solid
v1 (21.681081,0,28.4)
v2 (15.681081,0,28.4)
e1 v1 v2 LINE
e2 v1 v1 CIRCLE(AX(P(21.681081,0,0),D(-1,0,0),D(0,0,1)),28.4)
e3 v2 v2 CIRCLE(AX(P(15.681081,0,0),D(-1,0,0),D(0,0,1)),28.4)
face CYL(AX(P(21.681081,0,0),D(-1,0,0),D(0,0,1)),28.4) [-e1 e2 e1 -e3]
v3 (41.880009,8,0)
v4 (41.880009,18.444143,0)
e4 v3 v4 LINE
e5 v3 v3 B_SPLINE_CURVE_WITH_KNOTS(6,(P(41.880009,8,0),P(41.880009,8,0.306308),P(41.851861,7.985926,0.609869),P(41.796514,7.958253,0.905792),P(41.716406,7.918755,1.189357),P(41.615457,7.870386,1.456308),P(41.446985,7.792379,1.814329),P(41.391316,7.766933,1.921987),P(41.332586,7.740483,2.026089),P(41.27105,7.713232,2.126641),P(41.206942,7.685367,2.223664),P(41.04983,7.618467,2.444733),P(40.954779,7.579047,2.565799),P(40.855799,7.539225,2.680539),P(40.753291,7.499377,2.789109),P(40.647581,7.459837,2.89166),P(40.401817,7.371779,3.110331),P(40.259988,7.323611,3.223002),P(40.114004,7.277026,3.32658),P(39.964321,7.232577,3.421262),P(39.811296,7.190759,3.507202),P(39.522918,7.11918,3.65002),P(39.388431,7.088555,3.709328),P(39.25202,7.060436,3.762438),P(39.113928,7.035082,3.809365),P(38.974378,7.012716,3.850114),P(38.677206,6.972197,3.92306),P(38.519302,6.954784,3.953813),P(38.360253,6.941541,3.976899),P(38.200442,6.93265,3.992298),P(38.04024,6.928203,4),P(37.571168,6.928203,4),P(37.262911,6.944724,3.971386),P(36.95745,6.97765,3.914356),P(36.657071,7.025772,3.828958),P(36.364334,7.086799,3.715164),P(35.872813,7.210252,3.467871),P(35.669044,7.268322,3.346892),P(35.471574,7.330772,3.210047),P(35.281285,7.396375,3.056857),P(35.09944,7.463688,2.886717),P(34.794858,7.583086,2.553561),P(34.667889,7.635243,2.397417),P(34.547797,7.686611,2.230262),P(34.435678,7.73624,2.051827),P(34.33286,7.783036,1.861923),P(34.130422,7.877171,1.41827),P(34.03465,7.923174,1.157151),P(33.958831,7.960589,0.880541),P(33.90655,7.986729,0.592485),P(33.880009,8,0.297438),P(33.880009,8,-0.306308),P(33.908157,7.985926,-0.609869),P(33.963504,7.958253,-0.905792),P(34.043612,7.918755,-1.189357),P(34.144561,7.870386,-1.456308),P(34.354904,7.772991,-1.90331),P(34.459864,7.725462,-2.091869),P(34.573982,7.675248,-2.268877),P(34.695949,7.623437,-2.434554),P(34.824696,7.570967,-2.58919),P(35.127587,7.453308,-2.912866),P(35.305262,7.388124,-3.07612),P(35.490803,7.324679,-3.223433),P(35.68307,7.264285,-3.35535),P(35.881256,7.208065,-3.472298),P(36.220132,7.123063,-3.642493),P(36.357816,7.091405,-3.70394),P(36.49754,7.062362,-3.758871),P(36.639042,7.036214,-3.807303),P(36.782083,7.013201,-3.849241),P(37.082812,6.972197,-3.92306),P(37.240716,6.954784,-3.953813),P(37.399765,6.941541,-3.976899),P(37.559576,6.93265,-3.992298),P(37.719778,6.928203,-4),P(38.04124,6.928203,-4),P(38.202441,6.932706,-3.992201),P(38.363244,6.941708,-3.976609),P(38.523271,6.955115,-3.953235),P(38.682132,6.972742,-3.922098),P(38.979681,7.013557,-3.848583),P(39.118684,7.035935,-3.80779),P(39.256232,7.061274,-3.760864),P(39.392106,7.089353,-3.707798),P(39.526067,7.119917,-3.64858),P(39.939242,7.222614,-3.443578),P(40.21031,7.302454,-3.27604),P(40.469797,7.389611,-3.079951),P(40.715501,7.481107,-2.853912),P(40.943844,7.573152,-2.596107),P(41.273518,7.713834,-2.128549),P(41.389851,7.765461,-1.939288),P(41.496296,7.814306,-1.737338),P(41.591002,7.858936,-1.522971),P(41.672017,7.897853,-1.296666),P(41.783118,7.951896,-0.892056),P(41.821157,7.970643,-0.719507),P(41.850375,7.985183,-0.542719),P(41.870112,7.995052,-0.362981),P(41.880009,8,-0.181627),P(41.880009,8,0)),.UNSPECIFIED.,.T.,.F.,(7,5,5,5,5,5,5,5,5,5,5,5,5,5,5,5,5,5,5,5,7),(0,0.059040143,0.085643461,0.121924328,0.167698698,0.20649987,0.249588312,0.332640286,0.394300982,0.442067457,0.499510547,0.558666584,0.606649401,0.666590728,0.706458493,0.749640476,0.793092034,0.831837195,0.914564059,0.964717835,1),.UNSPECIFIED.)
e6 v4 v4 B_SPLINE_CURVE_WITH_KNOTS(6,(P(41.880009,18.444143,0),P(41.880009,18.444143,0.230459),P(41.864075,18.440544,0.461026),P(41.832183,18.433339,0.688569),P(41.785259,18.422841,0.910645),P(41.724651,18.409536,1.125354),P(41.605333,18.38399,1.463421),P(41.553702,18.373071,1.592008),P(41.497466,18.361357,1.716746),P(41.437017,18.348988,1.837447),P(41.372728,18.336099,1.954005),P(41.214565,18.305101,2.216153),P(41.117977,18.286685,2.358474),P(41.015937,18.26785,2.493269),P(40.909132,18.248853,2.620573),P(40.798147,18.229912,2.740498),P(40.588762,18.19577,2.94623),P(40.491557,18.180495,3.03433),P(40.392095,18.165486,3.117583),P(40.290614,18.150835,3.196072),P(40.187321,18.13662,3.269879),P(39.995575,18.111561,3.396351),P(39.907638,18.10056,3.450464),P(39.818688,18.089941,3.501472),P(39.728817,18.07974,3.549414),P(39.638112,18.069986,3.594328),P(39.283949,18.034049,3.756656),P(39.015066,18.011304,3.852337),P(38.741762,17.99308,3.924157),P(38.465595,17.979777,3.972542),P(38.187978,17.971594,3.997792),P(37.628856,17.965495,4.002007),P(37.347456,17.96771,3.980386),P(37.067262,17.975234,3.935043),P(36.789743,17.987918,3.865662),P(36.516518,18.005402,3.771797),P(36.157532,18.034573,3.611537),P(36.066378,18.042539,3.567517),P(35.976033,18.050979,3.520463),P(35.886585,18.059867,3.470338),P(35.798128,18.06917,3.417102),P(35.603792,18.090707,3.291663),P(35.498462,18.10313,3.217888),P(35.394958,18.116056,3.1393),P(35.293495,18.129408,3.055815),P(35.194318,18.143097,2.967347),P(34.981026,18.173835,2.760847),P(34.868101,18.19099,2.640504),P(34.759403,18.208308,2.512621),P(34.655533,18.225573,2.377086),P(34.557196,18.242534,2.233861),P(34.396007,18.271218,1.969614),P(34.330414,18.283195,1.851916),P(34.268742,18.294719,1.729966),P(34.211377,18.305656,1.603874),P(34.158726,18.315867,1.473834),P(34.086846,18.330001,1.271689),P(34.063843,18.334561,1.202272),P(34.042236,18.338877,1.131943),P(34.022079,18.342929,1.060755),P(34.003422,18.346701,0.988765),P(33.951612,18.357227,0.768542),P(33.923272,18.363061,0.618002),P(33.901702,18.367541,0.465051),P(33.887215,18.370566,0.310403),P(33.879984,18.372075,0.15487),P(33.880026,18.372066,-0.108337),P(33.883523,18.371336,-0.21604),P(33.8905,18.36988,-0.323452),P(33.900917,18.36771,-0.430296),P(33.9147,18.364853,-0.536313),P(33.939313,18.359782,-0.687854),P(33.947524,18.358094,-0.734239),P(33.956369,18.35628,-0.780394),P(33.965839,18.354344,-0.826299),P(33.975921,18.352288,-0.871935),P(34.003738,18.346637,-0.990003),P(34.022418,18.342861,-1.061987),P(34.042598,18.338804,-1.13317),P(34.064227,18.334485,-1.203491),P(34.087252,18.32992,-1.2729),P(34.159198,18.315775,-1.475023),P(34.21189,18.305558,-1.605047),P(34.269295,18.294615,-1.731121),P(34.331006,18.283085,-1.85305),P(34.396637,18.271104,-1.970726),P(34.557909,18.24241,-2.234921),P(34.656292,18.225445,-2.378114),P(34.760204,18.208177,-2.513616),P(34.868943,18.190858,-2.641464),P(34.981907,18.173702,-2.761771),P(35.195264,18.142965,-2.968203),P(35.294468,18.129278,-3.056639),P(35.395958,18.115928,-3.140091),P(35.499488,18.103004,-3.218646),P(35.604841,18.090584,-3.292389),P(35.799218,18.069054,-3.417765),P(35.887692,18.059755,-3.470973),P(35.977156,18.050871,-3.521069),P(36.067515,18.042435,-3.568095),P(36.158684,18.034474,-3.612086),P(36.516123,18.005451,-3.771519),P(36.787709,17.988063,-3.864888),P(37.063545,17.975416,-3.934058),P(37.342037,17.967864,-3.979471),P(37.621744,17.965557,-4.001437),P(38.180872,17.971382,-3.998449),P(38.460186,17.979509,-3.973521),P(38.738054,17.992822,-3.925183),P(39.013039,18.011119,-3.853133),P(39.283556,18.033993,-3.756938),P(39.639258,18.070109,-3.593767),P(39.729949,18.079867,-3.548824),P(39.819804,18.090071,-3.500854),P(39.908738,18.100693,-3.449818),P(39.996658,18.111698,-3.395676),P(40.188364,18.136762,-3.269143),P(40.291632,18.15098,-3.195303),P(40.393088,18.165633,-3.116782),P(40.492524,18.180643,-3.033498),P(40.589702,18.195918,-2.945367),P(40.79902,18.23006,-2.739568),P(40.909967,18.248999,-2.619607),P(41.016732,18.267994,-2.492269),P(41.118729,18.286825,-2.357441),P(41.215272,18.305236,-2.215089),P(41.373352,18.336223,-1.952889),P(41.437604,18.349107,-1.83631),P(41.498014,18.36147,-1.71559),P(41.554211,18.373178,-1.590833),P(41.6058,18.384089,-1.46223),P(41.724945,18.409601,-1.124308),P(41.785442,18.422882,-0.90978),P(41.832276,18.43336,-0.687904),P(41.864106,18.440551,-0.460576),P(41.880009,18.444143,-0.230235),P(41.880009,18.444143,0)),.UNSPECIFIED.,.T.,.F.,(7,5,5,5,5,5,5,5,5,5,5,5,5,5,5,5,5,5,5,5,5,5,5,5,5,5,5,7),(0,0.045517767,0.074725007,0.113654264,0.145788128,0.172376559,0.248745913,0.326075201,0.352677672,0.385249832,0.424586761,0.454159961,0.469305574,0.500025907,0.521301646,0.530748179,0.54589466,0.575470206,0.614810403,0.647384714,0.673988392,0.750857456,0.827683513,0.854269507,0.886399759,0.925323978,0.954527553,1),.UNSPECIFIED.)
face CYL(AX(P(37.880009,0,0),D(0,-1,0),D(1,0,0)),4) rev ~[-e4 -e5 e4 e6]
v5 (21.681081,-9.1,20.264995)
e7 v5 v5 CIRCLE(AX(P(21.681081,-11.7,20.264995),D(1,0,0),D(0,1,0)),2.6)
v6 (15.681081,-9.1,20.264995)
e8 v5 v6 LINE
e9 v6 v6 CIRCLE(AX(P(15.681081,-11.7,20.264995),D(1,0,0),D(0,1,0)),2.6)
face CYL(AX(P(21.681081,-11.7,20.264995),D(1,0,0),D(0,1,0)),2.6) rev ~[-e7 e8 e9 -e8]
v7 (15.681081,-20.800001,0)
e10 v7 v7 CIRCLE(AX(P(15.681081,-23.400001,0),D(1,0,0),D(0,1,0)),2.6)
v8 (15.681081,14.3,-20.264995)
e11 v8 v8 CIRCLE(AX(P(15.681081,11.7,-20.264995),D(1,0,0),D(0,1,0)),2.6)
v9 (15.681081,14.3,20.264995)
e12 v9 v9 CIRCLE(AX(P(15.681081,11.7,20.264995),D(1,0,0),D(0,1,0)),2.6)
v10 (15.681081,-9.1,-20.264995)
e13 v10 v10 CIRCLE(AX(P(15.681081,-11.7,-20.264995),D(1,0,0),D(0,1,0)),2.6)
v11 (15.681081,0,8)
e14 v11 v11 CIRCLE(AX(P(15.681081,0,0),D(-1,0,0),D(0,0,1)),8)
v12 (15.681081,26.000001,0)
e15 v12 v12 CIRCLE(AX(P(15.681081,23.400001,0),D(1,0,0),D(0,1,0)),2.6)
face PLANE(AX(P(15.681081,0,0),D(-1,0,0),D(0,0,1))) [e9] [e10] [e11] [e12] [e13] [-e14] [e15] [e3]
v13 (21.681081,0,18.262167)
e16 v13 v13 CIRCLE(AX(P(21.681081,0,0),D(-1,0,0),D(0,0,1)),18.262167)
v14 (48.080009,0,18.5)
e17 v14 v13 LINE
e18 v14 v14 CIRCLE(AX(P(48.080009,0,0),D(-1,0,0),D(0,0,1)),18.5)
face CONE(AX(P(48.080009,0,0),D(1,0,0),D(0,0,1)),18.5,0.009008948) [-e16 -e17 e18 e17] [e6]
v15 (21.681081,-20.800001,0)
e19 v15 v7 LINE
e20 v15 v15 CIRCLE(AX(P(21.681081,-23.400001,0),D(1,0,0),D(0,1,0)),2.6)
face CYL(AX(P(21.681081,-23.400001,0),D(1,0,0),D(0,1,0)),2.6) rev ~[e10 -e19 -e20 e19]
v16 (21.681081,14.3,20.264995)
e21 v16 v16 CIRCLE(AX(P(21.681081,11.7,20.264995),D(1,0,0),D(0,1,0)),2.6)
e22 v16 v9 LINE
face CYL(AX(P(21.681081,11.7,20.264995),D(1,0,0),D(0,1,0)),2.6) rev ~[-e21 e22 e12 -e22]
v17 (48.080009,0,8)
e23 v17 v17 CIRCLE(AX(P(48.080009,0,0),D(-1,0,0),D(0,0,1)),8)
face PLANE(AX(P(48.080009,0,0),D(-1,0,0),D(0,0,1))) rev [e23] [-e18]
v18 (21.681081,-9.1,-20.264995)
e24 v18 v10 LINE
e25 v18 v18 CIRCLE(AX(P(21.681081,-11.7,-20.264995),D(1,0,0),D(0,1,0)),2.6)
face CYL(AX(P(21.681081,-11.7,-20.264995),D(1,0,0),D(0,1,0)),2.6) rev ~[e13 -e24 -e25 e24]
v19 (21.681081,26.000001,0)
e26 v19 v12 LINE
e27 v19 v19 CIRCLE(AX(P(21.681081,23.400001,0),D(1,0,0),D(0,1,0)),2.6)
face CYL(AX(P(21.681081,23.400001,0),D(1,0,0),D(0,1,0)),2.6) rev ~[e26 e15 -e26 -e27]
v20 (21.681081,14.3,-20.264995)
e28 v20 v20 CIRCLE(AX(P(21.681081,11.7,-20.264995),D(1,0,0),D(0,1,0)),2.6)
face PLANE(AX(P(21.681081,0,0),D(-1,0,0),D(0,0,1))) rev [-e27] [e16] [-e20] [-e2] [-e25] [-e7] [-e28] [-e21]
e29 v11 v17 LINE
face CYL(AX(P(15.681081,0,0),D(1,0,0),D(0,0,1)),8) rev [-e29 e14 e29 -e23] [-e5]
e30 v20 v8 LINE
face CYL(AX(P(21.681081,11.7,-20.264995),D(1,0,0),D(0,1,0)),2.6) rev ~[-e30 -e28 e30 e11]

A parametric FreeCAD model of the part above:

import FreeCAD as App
import Part
import Sketcher
from FreeCAD import Vector
Q = App.Units.Quantity

doc = App.newDocument("Part")
body = doc.addObject("PartDesign::Body", "Body")

# Sketch on XZ plane
sketch1 = body.newObject("Sketcher::SketchObject", "Sketch")
sketch1.AttachmentSupport = (doc.getObject("XZ_Plane"), [""])
sketch1.MapMode = "FlatFace"
sketch1.addGeometry(Part.LineSegment(Vector(48.080009, 8, 0), Vector(48.080009, 18.5, 0)), False)
sketch1.addGeometry(Part.LineSegment(Vector(48.080009, 18.5, 0), Vector(21.681081, 18.262167, 0)), False)
sketch1.addGeometry(Part.LineSegment(Vector(21.681081, 18.262167, 0), Vector(21.681081, 28.4, 0)), False)
sketch1.addGeometry(Part.LineSegment(Vector(21.681081, 28.4, 0), Vector(15.681081, 28.4, 0)), False)
sketch1.addGeometry(Part.LineSegment(Vector(15.681081, 28.4, 0), Vector(15.681081, 8, 0)), False)
sketch1.addGeometry(Part.LineSegment(Vector(15.681081, 8, 0), Vector(48.080009, 8, 0)), False)
sketch1.addConstraint(Sketcher.Constraint("Coincident", 0, 2, 1, 1))
sketch1.addConstraint(Sketcher.Constraint("Coincident", 1, 2, 2, 1))
sketch1.addConstraint(Sketcher.Constraint("Coincident", 2, 2, 3, 1))
sketch1.addConstraint(Sketcher.Constraint("Coincident", 3, 2, 4, 1))
sketch1.addConstraint(Sketcher.Constraint("Coincident", 4, 2, 5, 1))
sketch1.addConstraint(Sketcher.Constraint("Coincident", 5, 2, 0, 1))
sketch1.addConstraint(Sketcher.Constraint("Vertical", 0))
sketch1.addConstraint(Sketcher.Constraint("Vertical", 2))
sketch1.addConstraint(Sketcher.Constraint("Horizontal", 3))
sketch1.addConstraint(Sketcher.Constraint("Vertical", 4))
sketch1.addConstraint(Sketcher.Constraint("Horizontal", 5))
sketch1.addConstraint(Sketcher.Constraint("DistanceX", 3, 2, 3, 1, Q("6 mm")))
sketch1.addConstraint(Sketcher.Constraint("DistanceY", 0, 1, 0, 2, Q("10.5 mm")))
sketch1.addConstraint(Sketcher.Constraint("DistanceY", 4, 2, 4, 1, Q("20.4 mm")))
sketch1.addConstraint(Sketcher.Constraint("DistanceY", -1, 1, 4, 2, Q("8 mm")))
sketch1.addConstraint(Sketcher.Constraint("Distance", 1, Q("26.399999 mm")))
sketch1.addConstraint(Sketcher.Constraint("DistanceX", 5, 1, 5, 2, Q("32.398928 mm")))
sketch1.addConstraint(Sketcher.Constraint("DistanceX", -1, 1, 0, 2, Q("48.080009 mm")))
revolution = body.newObject("PartDesign::Revolution", "Revolution")
revolution.Profile = sketch1
revolution.ReferenceAxis = (sketch1, ["H_Axis"])
revolution.Angle = 360

# Sketch on YZ plane
sketch2 = body.newObject("Sketcher::SketchObject", "Sketch001")
sketch2.AttachmentSupport = (doc.getObject("YZ_Plane"), [""])
sketch2.MapMode = "FlatFace"
sketch2.AttachmentOffset = App.Placement(Vector(0, 0, 21.681081), App.Rotation())
sketch2.addGeometry(Part.Circle(Vector(-23.400001, 0, 0), Vector(0, 0, 1), 2.6), False)
sketch2.addGeometry(Part.Circle(Vector(-11.7, -20.264995, 0), Vector(0, 0, 1), 2.6), False)
sketch2.addGeometry(Part.Circle(Vector(11.7, -20.264995, 0), Vector(0, 0, 1), 2.6), False)
sketch2.addGeometry(Part.Circle(Vector(23.400001, 0, 0), Vector(0, 0, 1), 2.6), False)
sketch2.addGeometry(Part.Circle(Vector(11.7, 20.264995, 0), Vector(0, 0, 1), 2.6), False)
sketch2.addGeometry(Part.Circle(Vector(-11.7, 20.264995, 0), Vector(0, 0, 1), 2.6), False)
sketch2.addConstraint(Sketcher.Constraint("Equal", 0, 1))
sketch2.addConstraint(Sketcher.Constraint("Equal", 1, 2))
sketch2.addConstraint(Sketcher.Constraint("Equal", 2, 3))
sketch2.addConstraint(Sketcher.Constraint("Equal", 3, 4))
sketch2.addConstraint(Sketcher.Constraint("Equal", 4, 5))
sketch2.addConstraint(Sketcher.Constraint("Symmetric", 0, 3, 3, 3, -1, 1))
sketch2.addConstraint(Sketcher.Constraint("Symmetric", 1, 3, 4, 3, -1, 1))
sketch2.addConstraint(Sketcher.Constraint("Symmetric", 2, 3, 5, 3, -1, 1))
sketch2.addConstraint(Sketcher.Constraint("Symmetric", 1, 3, 2, 3, -2))
sketch2.addConstraint(Sketcher.Constraint("PointOnObject", 0, 3, -1))
sketch2.addConstraint(Sketcher.Constraint("Diameter", 0, Q("5.2 mm")))
sketch2.addConstraint(Sketcher.Constraint("DistanceX", 0, 3, -1, 1, Q("23.400001 mm")))
sketch2.addConstraint(Sketcher.Constraint("DistanceX", 1, 3, -1, 1, Q("11.7 mm")))
sketch2.addConstraint(Sketcher.Constraint("DistanceY", 2, 3, 4, 3, Q("40.52999 mm")))
pocket1 = body.newObject("PartDesign::Pocket", "Pocket")
pocket1.Profile = sketch2
pocket1.Length = 6

# Sketch on XZ plane
sketch3 = body.newObject("Sketcher::SketchObject", "Sketch002")
sketch3.AttachmentSupport = (doc.getObject("XZ_Plane"), [""])
sketch3.MapMode = "FlatFace"
sketch3.addGeometry(Part.Circle(Vector(37.880009, 0, 0), Vector(0, 0, 1), 4), False)
sketch3.addConstraint(Sketcher.Constraint("PointOnObject", 0, 3, -1))
sketch3.addConstraint(Sketcher.Constraint("Diameter", 0, Q("8 mm")))
sketch3.addConstraint(Sketcher.Constraint("DistanceX", -1, 1, 0, 3, Q("37.880009 mm")))
pocket2 = body.newObject("PartDesign::Pocket", "Pocket001")
pocket2.Profile = sketch3
pocket2.Type = "ThroughAll"

doc.recompute()
